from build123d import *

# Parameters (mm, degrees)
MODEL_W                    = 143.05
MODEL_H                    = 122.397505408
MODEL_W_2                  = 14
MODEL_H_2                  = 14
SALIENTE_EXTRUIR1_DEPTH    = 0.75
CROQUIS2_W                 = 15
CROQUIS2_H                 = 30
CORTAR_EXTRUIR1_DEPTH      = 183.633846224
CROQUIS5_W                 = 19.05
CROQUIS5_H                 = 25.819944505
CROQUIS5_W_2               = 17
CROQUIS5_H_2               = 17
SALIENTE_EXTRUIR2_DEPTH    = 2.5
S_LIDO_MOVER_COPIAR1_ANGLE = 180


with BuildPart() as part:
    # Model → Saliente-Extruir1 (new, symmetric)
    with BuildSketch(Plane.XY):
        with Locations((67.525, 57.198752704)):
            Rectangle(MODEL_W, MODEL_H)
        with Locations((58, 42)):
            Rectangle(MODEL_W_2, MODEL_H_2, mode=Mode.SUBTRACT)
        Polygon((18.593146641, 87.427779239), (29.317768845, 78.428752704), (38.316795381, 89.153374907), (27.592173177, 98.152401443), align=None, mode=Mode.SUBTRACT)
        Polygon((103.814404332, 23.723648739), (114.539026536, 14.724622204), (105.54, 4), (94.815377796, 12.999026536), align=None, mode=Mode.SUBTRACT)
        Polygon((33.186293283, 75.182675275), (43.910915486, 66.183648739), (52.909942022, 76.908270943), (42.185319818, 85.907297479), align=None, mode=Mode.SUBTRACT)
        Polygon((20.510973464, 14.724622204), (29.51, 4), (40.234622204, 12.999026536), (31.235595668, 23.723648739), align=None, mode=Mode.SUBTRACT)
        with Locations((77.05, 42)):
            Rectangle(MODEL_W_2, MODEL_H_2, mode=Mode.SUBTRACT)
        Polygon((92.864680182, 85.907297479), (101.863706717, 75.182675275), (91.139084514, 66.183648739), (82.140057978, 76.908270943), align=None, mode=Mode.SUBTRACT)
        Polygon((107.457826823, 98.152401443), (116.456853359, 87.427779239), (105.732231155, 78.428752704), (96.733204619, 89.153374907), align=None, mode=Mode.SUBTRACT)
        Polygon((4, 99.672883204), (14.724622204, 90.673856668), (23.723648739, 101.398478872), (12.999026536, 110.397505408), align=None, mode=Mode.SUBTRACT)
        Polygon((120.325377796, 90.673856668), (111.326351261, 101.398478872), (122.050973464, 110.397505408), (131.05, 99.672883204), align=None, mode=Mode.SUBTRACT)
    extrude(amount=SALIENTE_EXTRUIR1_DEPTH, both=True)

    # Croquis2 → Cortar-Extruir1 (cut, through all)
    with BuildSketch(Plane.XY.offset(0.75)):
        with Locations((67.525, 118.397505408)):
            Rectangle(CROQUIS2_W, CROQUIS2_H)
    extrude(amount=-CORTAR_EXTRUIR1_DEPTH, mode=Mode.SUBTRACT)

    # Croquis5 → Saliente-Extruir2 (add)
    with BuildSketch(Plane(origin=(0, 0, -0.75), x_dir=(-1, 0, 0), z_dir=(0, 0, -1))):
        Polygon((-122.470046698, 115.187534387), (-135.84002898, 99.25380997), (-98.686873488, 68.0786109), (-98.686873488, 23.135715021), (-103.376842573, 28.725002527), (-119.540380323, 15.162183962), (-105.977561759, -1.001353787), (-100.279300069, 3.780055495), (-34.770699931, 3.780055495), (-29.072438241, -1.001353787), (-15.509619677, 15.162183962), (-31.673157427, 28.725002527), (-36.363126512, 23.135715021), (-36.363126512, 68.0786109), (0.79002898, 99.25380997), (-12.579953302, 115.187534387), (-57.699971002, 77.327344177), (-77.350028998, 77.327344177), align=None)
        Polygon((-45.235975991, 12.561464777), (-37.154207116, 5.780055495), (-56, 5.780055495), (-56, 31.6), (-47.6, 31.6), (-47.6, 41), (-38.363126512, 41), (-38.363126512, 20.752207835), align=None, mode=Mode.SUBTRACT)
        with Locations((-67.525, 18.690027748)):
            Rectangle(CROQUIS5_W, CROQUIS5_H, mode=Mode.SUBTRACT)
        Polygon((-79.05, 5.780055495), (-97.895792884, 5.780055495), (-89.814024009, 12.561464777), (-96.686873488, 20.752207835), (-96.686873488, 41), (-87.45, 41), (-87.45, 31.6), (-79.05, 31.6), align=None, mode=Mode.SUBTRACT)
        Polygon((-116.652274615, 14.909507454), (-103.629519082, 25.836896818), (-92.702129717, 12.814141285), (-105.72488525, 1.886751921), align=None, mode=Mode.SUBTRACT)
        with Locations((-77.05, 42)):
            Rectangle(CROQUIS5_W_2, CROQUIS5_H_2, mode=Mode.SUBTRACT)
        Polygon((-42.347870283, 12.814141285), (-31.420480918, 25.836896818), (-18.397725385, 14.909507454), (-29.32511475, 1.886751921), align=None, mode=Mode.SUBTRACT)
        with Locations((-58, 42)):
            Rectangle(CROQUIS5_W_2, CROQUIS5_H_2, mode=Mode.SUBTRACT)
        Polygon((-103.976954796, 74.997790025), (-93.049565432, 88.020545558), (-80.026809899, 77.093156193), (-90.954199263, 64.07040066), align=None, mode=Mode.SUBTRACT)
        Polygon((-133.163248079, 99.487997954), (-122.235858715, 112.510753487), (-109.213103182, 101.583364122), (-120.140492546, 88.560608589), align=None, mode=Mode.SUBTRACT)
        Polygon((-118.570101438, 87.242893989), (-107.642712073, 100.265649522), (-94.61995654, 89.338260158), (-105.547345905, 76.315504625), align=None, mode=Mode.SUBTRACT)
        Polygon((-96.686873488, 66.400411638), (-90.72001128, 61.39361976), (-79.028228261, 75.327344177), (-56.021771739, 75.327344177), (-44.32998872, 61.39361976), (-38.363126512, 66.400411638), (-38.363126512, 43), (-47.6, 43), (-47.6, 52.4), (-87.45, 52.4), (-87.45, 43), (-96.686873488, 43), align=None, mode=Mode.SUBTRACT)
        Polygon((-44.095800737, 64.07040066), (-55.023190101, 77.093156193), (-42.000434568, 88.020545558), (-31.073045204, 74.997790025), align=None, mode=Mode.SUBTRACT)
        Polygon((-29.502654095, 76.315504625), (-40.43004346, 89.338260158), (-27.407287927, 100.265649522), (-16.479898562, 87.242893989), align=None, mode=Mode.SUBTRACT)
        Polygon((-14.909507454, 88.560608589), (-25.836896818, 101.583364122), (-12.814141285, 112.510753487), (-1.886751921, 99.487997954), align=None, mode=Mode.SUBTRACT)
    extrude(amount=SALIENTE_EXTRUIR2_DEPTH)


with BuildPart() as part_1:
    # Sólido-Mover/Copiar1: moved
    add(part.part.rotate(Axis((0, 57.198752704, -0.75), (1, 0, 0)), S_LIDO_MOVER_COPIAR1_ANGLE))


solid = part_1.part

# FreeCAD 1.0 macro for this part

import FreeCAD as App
import Part
import Sketcher

V = App.Vector
Q = App.Units.Quantity

doc = App.newDocument("Part")
params = doc.addObject("Spreadsheet::Sheet", "Params")
for row, (alias, value) in enumerate([
    ("sketch1_width", "14 mm"),
    ("sketch1_length", "14 mm"),
    ("sketch1_width2", "143.05 mm"),
    ("pad1_length", "1.5 mm"),
    ("sketch2_width", "15 mm"),
    ("sketch2_height", "30 mm"),
    ("sketch3_width", "17 mm"),
    ("sketch3_length", "17 mm"),
    ("sketch3_width2", "8.4 mm"),
    ("sketch3_height", "9.4 mm"),
    ("sketch3_length2", "20.8 mm"),
    ("pad2_length", "2.5 mm"),
], start=1):
    params.set(f"A{row}", alias)
    params.set(f"B{row}", "=" + value)
    params.setAlias(f"B{row}", alias)

body = doc.addObject("PartDesign::Body", "Body")

# Sketch on XY plane
sketch1 = body.newObject("Sketcher::SketchObject", "Sketch")
sketch1.AttachmentSupport = (doc.getObject("XY_Plane"), [""])
sketch1.MapMode = "FlatFace"
sketch1.addGeometry([
    Part.LineSegment(V(-4, 118, 0), V(-4, -4, 0)),  # 0
    Part.LineSegment(V(-4, -4, 0), V(139, -4, 0)),  # 1
    Part.LineSegment(V(139, -4, 0), V(139, 118, 0)),  # 2
    Part.LineSegment(V(139, 118, 0), V(-4, 118, 0)),  # 3
    Part.LineSegment(V(30, 4, 0), V(21, 15, 0)),  # 4
    Part.LineSegment(V(21, 15, 0), V(31, 24, 0)),  # 5
    Part.LineSegment(V(31, 24, 0), V(40, 13, 0)),  # 6
    Part.LineSegment(V(40, 13, 0), V(30, 4, 0)),  # 7
    Part.LineSegment(V(65, 35, 0), V(51, 35, 0)),  # 8
    Part.LineSegment(V(51, 35, 0), V(51, 49, 0)),  # 9
    Part.LineSegment(V(51, 49, 0), V(65, 49, 0)),  # 10
    Part.LineSegment(V(65, 49, 0), V(65, 35, 0)),  # 11
    Part.LineSegment(V(95, 13, 0), V(104, 24, 0)),  # 12
    Part.LineSegment(V(104, 24, 0), V(115, 15, 0)),  # 13
    Part.LineSegment(V(115, 15, 0), V(106, 4, 0)),  # 14
    Part.LineSegment(V(106, 4, 0), V(95, 13, 0)),  # 15
    Part.LineSegment(V(84, 35, 0), V(70, 35, 0)),  # 16
    Part.LineSegment(V(70, 35, 0), V(70, 49, 0)),  # 17
    Part.LineSegment(V(70, 49, 0), V(84, 49, 0)),  # 18
    Part.LineSegment(V(84, 49, 0), V(84, 35, 0)),  # 19
    Part.LineSegment(V(44, 66, 0), V(33, 75, 0)),  # 20
    Part.LineSegment(V(33, 75, 0), V(42, 86, 0)),  # 21
    Part.LineSegment(V(42, 86, 0), V(53, 77, 0)),  # 22
    Part.LineSegment(V(53, 77, 0), V(44, 66, 0)),  # 23
    Part.LineSegment(V(29, 78, 0), V(19, 87, 0)),  # 24
    Part.LineSegment(V(19, 87, 0), V(28, 98, 0)),  # 25
    Part.LineSegment(V(28, 98, 0), V(38, 89, 0)),  # 26
    Part.LineSegment(V(38, 89, 0), V(29, 78, 0)),  # 27
    Part.LineSegment(V(15, 91, 0), V(4, 100, 0)),  # 28
    Part.LineSegment(V(4, 100, 0), V(13, 110, 0)),  # 29
    Part.LineSegment(V(13, 110, 0), V(24, 101, 0)),  # 30
    Part.LineSegment(V(24, 101, 0), V(15, 91, 0)),  # 31
    Part.LineSegment(V(82, 77, 0), V(93, 86, 0)),  # 32
    Part.LineSegment(V(93, 86, 0), V(102, 75, 0)),  # 33
    Part.LineSegment(V(102, 75, 0), V(91, 66, 0)),  # 34
    Part.LineSegment(V(91, 66, 0), V(82, 77, 0)),  # 35
    Part.LineSegment(V(97, 89, 0), V(107, 98, 0)),  # 36
    Part.LineSegment(V(107, 98, 0), V(116, 87, 0)),  # 37
    Part.LineSegment(V(116, 87, 0), V(106, 78, 0)),  # 38
    Part.LineSegment(V(106, 78, 0), V(97, 89, 0)),  # 39
    Part.LineSegment(V(131, 100, 0), V(120, 91, 0)),  # 40
    Part.LineSegment(V(120, 91, 0), V(111, 101, 0)),  # 41
    Part.LineSegment(V(111, 101, 0), V(122, 110, 0)),  # 42
    Part.LineSegment(V(122, 110, 0), V(131, 100, 0)),  # 43
], False)
sketch1.addConstraint([
    Sketcher.Constraint("Coincident", 0, 2, 1, 1),
    Sketcher.Constraint("Coincident", 1, 2, 2, 1),
    Sketcher.Constraint("Coincident", 2, 2, 3, 1),
    Sketcher.Constraint("Coincident", 3, 2, 0, 1),
    Sketcher.Constraint("Coincident", 4, 2, 5, 1),
    Sketcher.Constraint("Coincident", 5, 2, 6, 1),
    Sketcher.Constraint("Coincident", 6, 2, 7, 1),
    Sketcher.Constraint("Coincident", 7, 2, 4, 1),
    Sketcher.Constraint("Coincident", 8, 2, 9, 1),
    Sketcher.Constraint("Coincident", 9, 2, 10, 1),
    Sketcher.Constraint("Coincident", 10, 2, 11, 1),
    Sketcher.Constraint("Coincident", 11, 2, 8, 1),
    Sketcher.Constraint("Coincident", 12, 2, 13, 1),
    Sketcher.Constraint("Coincident", 13, 2, 14, 1),
    Sketcher.Constraint("Coincident", 14, 2, 15, 1),
    Sketcher.Constraint("Coincident", 15, 2, 12, 1),
    Sketcher.Constraint("Coincident", 16, 2, 17, 1),
    Sketcher.Constraint("Coincident", 17, 2, 18, 1),
    Sketcher.Constraint("Coincident", 18, 2, 19, 1),
    Sketcher.Constraint("Coincident", 19, 2, 16, 1),
    Sketcher.Constraint("Coincident", 20, 2, 21, 1),
    Sketcher.Constraint("Coincident", 21, 2, 22, 1),
    Sketcher.Constraint("Coincident", 22, 2, 23, 1),
    Sketcher.Constraint("Coincident", 23, 2, 20, 1),
    Sketcher.Constraint("Coincident", 24, 2, 25, 1),
    Sketcher.Constraint("Coincident", 25, 2, 26, 1),
    Sketcher.Constraint("Coincident", 26, 2, 27, 1),
    Sketcher.Constraint("Coincident", 27, 2, 24, 1),
    Sketcher.Constraint("Coincident", 28, 2, 29, 1),
    Sketcher.Constraint("Coincident", 29, 2, 30, 1),
    Sketcher.Constraint("Coincident", 30, 2, 31, 1),
    Sketcher.Constraint("Coincident", 31, 2, 28, 1),
    Sketcher.Constraint("Coincident", 32, 2, 33, 1),
    Sketcher.Constraint("Coincident", 33, 2, 34, 1),
    Sketcher.Constraint("Coincident", 34, 2, 35, 1),
    Sketcher.Constraint("Coincident", 35, 2, 32, 1),
    Sketcher.Constraint("Coincident", 36, 2, 37, 1),
    Sketcher.Constraint("Coincident", 37, 2, 38, 1),
    Sketcher.Constraint("Coincident", 38, 2, 39, 1),
    Sketcher.Constraint("Coincident", 39, 2, 36, 1),
    Sketcher.Constraint("Coincident", 40, 2, 41, 1),
    Sketcher.Constraint("Coincident", 41, 2, 42, 1),
    Sketcher.Constraint("Coincident", 42, 2, 43, 1),
    Sketcher.Constraint("Coincident", 43, 2, 40, 1),
    Sketcher.Constraint("Vertical", 0),
    Sketcher.Constraint("Horizontal", 1),
    Sketcher.Constraint("Vertical", 2),
    Sketcher.Constraint("Horizontal", 3),
    Sketcher.Constraint("Horizontal", 8),
    Sketcher.Constraint("Vertical", 9),
    Sketcher.Constraint("Horizontal", 10),
    Sketcher.Constraint("Vertical", 11),
    Sketcher.Constraint("Horizontal", 16),
    Sketcher.Constraint("Vertical", 17),
    Sketcher.Constraint("Horizontal", 18),
    Sketcher.Constraint("Vertical", 19),
    Sketcher.Constraint("Perpendicular", 4, 5),
    Sketcher.Constraint("Perpendicular", 5, 6),
    Sketcher.Constraint("Perpendicular", 6, 7),
    Sketcher.Constraint("Perpendicular", 12, 13),
    Sketcher.Constraint("Perpendicular", 13, 14),
    Sketcher.Constraint("Perpendicular", 14, 15),
    Sketcher.Constraint("Parallel", 15, 20),
    Sketcher.Constraint("Perpendicular", 20, 21),
    Sketcher.Constraint("Perpendicular", 21, 22),
    Sketcher.Constraint("Perpendicular", 22, 23),
    Sketcher.Constraint("Perpendicular", 23, 24),
    Sketcher.Constraint("Perpendicular", 24, 25),
    Sketcher.Constraint("Perpendicular", 25, 26),
    Sketcher.Constraint("Perpendicular", 26, 27),
    Sketcher.Constraint("Perpendicular", 27, 28),
    Sketcher.Constraint("Perpendicular", 28, 29),
    Sketcher.Constraint("Perpendicular", 29, 30),
    Sketcher.Constraint("Perpendicular", 30, 31),
    Sketcher.Constraint("Parallel", 7, 32),
    Sketcher.Constraint("Perpendicular", 32, 33),
    Sketcher.Constraint("Perpendicular", 33, 34),
    Sketcher.Constraint("Perpendicular", 34, 35),
    Sketcher.Constraint("Perpendicular", 35, 36),
    Sketcher.Constraint("Perpendicular", 36, 37),
    Sketcher.Constraint("Perpendicular", 37, 38),
    Sketcher.Constraint("Perpendicular", 38, 39),
    Sketcher.Constraint("Perpendicular", 39, 40),
    Sketcher.Constraint("Perpendicular", 40, 41),
    Sketcher.Constraint("Perpendicular", 41, 42),
    Sketcher.Constraint("Perpendicular", 42, 43),
    Sketcher.Constraint("Horizontal", 5, 2, 12, 2),
    Sketcher.Constraint("Horizontal", 4, 2, 13, 2),
    Sketcher.Constraint("Horizontal", 7, 2, 14, 2),
    Sketcher.Constraint("Horizontal", 11, 2, 16, 2),
    Sketcher.Constraint("Horizontal", 10, 2, 17, 2),
    Sketcher.Constraint("Horizontal", 21, 2, 32, 2),
    Sketcher.Constraint("Horizontal", 20, 2, 33, 2),
    Sketcher.Constraint("Horizontal", 23, 2, 34, 2),
    Sketcher.Constraint("Horizontal", 25, 2, 36, 2),
    Sketcher.Constraint("Horizontal", 24, 2, 37, 2),
    Sketcher.Constraint("Horizontal", 27, 2, 38, 2),
    Sketcher.Constraint("Horizontal", 31, 2, 40, 2),
    Sketcher.Constraint("Horizontal", 30, 2, 41, 2),
    Sketcher.Constraint("Horizontal", 29, 2, 42, 2),
    Sketcher.Constraint("Equal", 10, 16),
    Sketcher.Constraint("Equal", 18, 9),
    Sketcher.Constraint("Equal", 4, 5),
    Sketcher.Constraint("Equal", 7, 12),
    Sketcher.Constraint("Equal", 15, 20),
    Sketcher.Constraint("Equal", 20, 21),
    Sketcher.Constraint("Equal", 23, 24),
    Sketcher.Constraint("Equal", 24, 25),
    Sketcher.Constraint("Equal", 27, 28),
    Sketcher.Constraint("Equal", 28, 29),
    Sketcher.Constraint("DistanceX", 8, 2, 8, 1, 14.0),
    Sketcher.Constraint("Angle", 4, Q("130 deg")),
    Sketcher.Constraint("Distance", 4, 14.0),
    Sketcher.Constraint("DistanceX", 0, 2, -1, 1, 4.0),
    Sketcher.Constraint("DistanceY", 0, 2, -1, 1, 4.0),
    Sketcher.Constraint("DistanceY", -1, 1, 7, 2, 4.0),
    Sketcher.Constraint("DistanceX", -1, 1, 8, 2, 51.0),
    Sketcher.Constraint("DistanceY", -1, 1, 8, 2, 35.0),
    Sketcher.Constraint("DistanceX", -1, 1, 28, 2, 4.0),
    Sketcher.Constraint("DistanceY", 29, 2, 3, 2, 8.0),
    Sketcher.Constraint("DistanceX", 43, 2, 2, 2, 8.0),
    Sketcher.Constraint("DistanceX", 1, 1, 1, 2, 143.05),
    Sketcher.Constraint("DistanceX", -1, 1, 7, 2, 29.51),
    Sketcher.Constraint("DistanceX", -1, 1, 14, 2, 105.54),
    Sketcher.Constraint("DistanceX", -1, 1, 16, 2, 70.05),
    Sketcher.Constraint("DistanceY", -1, 1, 25, 2, 98.152401),
    Sketcher.Constraint("DistanceY", 20, 2, 26, 2, 13.9707),
    Sketcher.Constraint("DistanceY", 24, 2, 30, 2, 13.9707),
    Sketcher.Constraint("DistanceX", -1, 1, 21, 2, 42.18532),
    Sketcher.Constraint("DistanceX", -1, 1, 27, 2, 29.317769),
    Sketcher.Constraint("DistanceX", -1, 1, 32, 2, 92.86468),
    Sketcher.Constraint("DistanceX", -1, 1, 38, 2, 105.732231),
])
sketch1.setExpression("Constraints[110]", "Params.sketch1_width")
sketch1.setExpression("Constraints[112]", "Params.sketch1_length")
sketch1.setExpression("Constraints[121]", "Params.sketch1_width2")
pad1 = body.newObject("PartDesign::Pad", "Pad")
pad1.Profile = sketch1
pad1.setExpression("Length", "Params.pad1_length")
pad1.Midplane = True

# Sketch on XY plane
sketch2 = body.newObject("Sketcher::SketchObject", "Sketch001")
sketch2.AttachmentSupport = (doc.getObject("XY_Plane"), [""])
sketch2.MapMode = "FlatFace"
sketch2.AttachmentOffset = App.Placement(V(0, 0, 0.75), App.Rotation())
sketch2.addGeometry([
    Part.LineSegment(V(60, 133, 0), V(60, 103, 0)),
    Part.LineSegment(V(60, 103, 0), V(75, 103, 0)),
    Part.LineSegment(V(75, 103, 0), V(75, 133, 0)),
    Part.LineSegment(V(75, 133, 0), V(60, 133, 0)),
], False)
sketch2.addConstraint([
    Sketcher.Constraint("Coincident", 0, 2, 1, 1),
    Sketcher.Constraint("Coincident", 1, 2, 2, 1),
    Sketcher.Constraint("Coincident", 2, 2, 3, 1),
    Sketcher.Constraint("Coincident", 3, 2, 0, 1),
    Sketcher.Constraint("Vertical", 0),
    Sketcher.Constraint("Horizontal", 1),
    Sketcher.Constraint("Vertical", 2),
    Sketcher.Constraint("Horizontal", 3),
    Sketcher.Constraint("DistanceX", 1, 1, 1, 2, 15.0),
    Sketcher.Constraint("DistanceY", 0, 2, 0, 1, 30.0),
    Sketcher.Constraint("DistanceX", -1, 1, 0, 2, 60.025),
    Sketcher.Constraint("DistanceY", -1, 1, 0, 2, 103.397505),
])
sketch2.setExpression("Constraints[8]", "Params.sketch2_width")
sketch2.setExpression("Constraints[9]", "Params.sketch2_height")
pocket1 = body.newObject("PartDesign::Pocket", "Pocket")
pocket1.Profile = sketch2
pocket1.Type = "ThroughAll"

# Sketch on XY plane
sketch3 = body.newObject("Sketcher::SketchObject", "Sketch002")
sketch3.AttachmentSupport = (doc.getObject("XY_Plane"), [""])
sketch3.MapMode = "FlatFace"
sketch3.AttachmentOffset = App.Placement(V(0, 0, -0.75), App.Rotation())
sketch3.addGeometry([
    Part.LineSegment(V(122, 115, 0), V(136, 99, 0)),  # 0
    Part.LineSegment(V(136, 99, 0), V(99, 68, 0)),  # 1
    Part.LineSegment(V(99, 68, 0), V(99, 23, 0)),  # 2
    Part.LineSegment(V(99, 23, 0), V(103, 29, 0)),  # 3
    Part.LineSegment(V(103, 29, 0), V(120, 15, 0)),  # 4
    Part.LineSegment(V(120, 15, 0), V(106, -1, 0)),  # 5
    Part.LineSegment(V(106, -1, 0), V(100, 4, 0)),  # 6
    Part.LineSegment(V(100, 4, 0), V(35, 4, 0)),  # 7
    Part.LineSegment(V(35, 4, 0), V(29, -1, 0)),  # 8
    Part.LineSegment(V(29, -1, 0), V(16, 15, 0)),  # 9
    Part.LineSegment(V(16, 15, 0), V(32, 29, 0)),  # 10
    Part.LineSegment(V(32, 29, 0), V(36, 23, 0)),  # 11
    Part.LineSegment(V(36, 23, 0), V(36, 68, 0)),  # 12
    Part.LineSegment(V(36, 68, 0), V(-1, 99, 0)),  # 13
    Part.LineSegment(V(-1, 99, 0), V(13, 115, 0)),  # 14
    Part.LineSegment(V(13, 115, 0), V(58, 77, 0)),  # 15
    Part.LineSegment(V(58, 77, 0), V(77, 77, 0)),  # 16
    Part.LineSegment(V(77, 77, 0), V(122, 115, 0)),  # 17
    Part.LineSegment(V(106, 2, 0), V(117, 15, 0)),  # 18
    Part.LineSegment(V(117, 15, 0), V(104, 26, 0)),  # 19
    Part.LineSegment(V(104, 26, 0), V(93, 13, 0)),  # 20
    Part.LineSegment(V(93, 13, 0), V(106, 2, 0)),  # 21
    Part.LineSegment(V(79, 32, 0), V(79, 6, 0)),  # 22
    Part.LineSegment(V(79, 6, 0), V(98, 6, 0)),  # 23
    Part.LineSegment(V(98, 6, 0), V(90, 13, 0)),  # 24
    Part.LineSegment(V(90, 13, 0), V(97, 21, 0)),  # 25
    Part.LineSegment(V(97, 21, 0), V(97, 41, 0)),  # 26
    Part.LineSegment(V(97, 41, 0), V(87, 41, 0)),  # 27
    Part.LineSegment(V(87, 41, 0), V(87, 32, 0)),  # 28
    Part.LineSegment(V(87, 32, 0), V(79, 32, 0)),  # 29
    Part.LineSegment(V(69, 34, 0), V(86, 34, 0)),  # 30
    Part.LineSegment(V(86, 34, 0), V(86, 50, 0)),  # 31
    Part.LineSegment(V(86, 50, 0), V(69, 50, 0)),  # 32
    Part.LineSegment(V(69, 50, 0), V(69, 34, 0)),  # 33
    Part.LineSegment(V(58, 6, 0), V(77, 6, 0)),  # 34
    Part.LineSegment(V(77, 6, 0), V(77, 32, 0)),  # 35
    Part.LineSegment(V(77, 32, 0), V(58, 32, 0)),  # 36
    Part.LineSegment(V(58, 32, 0), V(58, 6, 0)),  # 37
    Part.LineSegment(V(38, 21, 0), V(45, 13, 0)),  # 38
    Part.LineSegment(V(45, 13, 0), V(37, 6, 0)),  # 39
    Part.LineSegment(V(37, 6, 0), V(56, 6, 0)),  # 40
    Part.LineSegment(V(56, 6, 0), V(56, 32, 0)),  # 41
    Part.LineSegment(V(56, 32, 0), V(48, 32, 0)),  # 42
    Part.LineSegment(V(48, 32, 0), V(48, 41, 0)),  # 43
    Part.LineSegment(V(48, 41, 0), V(38, 41, 0)),  # 44
    Part.LineSegment(V(38, 41, 0), V(38, 21, 0)),  # 45
    Part.LineSegment(V(29, 2, 0), V(42, 13, 0)),  # 46
    Part.LineSegment(V(42, 13, 0), V(31, 26, 0)),  # 47
    Part.LineSegment(V(31, 26, 0), V(18, 15, 0)),  # 48
    Part.LineSegment(V(18, 15, 0), V(29, 2, 0)),  # 49
    Part.LineSegment(V(50, 34, 0), V(66, 34, 0)),  # 50
    Part.LineSegment(V(66, 34, 0), V(66, 50, 0)),  # 51
    Part.LineSegment(V(66, 50, 0), V(50, 50, 0)),  # 52
    Part.LineSegment(V(50, 50, 0), V(50, 34, 0)),  # 53
    Part.LineSegment(V(91, 64, 0), V(104, 75, 0)),  # 54
    Part.LineSegment(V(104, 75, 0), V(93, 88, 0)),  # 55
    Part.LineSegment(V(93, 88, 0), V(80, 77, 0)),  # 56
    Part.LineSegment(V(80, 77, 0), V(91, 64, 0)),  # 57
    Part.LineSegment(V(106, 76, 0), V(119, 87, 0)),  # 58
    Part.LineSegment(V(119, 87, 0), V(108, 100, 0)),  # 59
    Part.LineSegment(V(108, 100, 0), V(95, 89, 0)),  # 60
    Part.LineSegment(V(95, 89, 0), V(106, 76, 0)),  # 61
    Part.LineSegment(V(120, 89, 0), V(133, 99, 0)),  # 62
    Part.LineSegment(V(133, 99, 0), V(122, 113, 0)),  # 63
    Part.LineSegment(V(122, 113, 0), V(109, 102, 0)),  # 64
    Part.LineSegment(V(109, 102, 0), V(120, 89, 0)),  # 65
    Part.LineSegment(V(97, 43, 0), V(97, 66, 0)),  # 66
    Part.LineSegment(V(97, 66, 0), V(91, 61, 0)),  # 67
    Part.LineSegment(V(91, 61, 0), V(79, 75, 0)),  # 68
    Part.LineSegment(V(79, 75, 0), V(56, 75, 0)),  # 69
    Part.LineSegment(V(56, 75, 0), V(44, 61, 0)),  # 70
    Part.LineSegment(V(44, 61, 0), V(38, 66, 0)),  # 71
    Part.LineSegment(V(38, 66, 0), V(38, 43, 0)),  # 72
    Part.LineSegment(V(38, 43, 0), V(48, 43, 0)),  # 73
    Part.LineSegment(V(48, 43, 0), V(48, 52, 0)),  # 74
    Part.LineSegment(V(48, 52, 0), V(87, 52, 0)),  # 75
    Part.LineSegment(V(87, 52, 0), V(87, 43, 0)),  # 76
    Part.LineSegment(V(87, 43, 0), V(97, 43, 0)),  # 77
    Part.LineSegment(V(31, 75, 0), V(44, 64, 0)),  # 78
    Part.LineSegment(V(44, 64, 0), V(55, 77, 0)),  # 79
    Part.LineSegment(V(55, 77, 0), V(42, 88, 0)),  # 80
    Part.LineSegment(V(42, 88, 0), V(31, 75, 0)),  # 81
    Part.LineSegment(V(16, 87, 0), V(30, 76, 0)),  # 82
    Part.LineSegment(V(30, 76, 0), V(40, 89, 0)),  # 83
    Part.LineSegment(V(40, 89, 0), V(27, 100, 0)),  # 84
    Part.LineSegment(V(27, 100, 0), V(16, 87, 0)),  # 85
    Part.LineSegment(V(2, 99, 0), V(15, 89, 0)),  # 86
    Part.LineSegment(V(15, 89, 0), V(26, 102, 0)),  # 87
    Part.LineSegment(V(26, 102, 0), V(13, 113, 0)),  # 88
    Part.LineSegment(V(13, 113, 0), V(2, 99, 0)),  # 89
], False)
sketch3.addConstraint([
    Sketcher.Constraint("Coincident", 0, 2, 1, 1),
    Sketcher.Constraint("Coincident", 1, 2, 2, 1),
    Sketcher.Constraint("Coincident", 2, 2, 3, 1),
    Sketcher.Constraint("Coincident", 3, 2, 4, 1),
    Sketcher.Constraint("Coincident", 4, 2, 5, 1),
    Sketcher.Constraint("Coincident", 5, 2, 6, 1),
    Sketcher.Constraint("Coincident", 6, 2, 7, 1),
    Sketcher.Constraint("Coincident", 7, 2, 8, 1),
    Sketcher.Constraint("Coincident", 8, 2, 9, 1),
    Sketcher.Constraint("Coincident", 9, 2, 10, 1),
    Sketcher.Constraint("Coincident", 10, 2, 11, 1),
    Sketcher.Constraint("Coincident", 11, 2, 12, 1),
    Sketcher.Constraint("Coincident", 12, 2, 13, 1),
    Sketcher.Constraint("Coincident", 13, 2, 14, 1),
    Sketcher.Constraint("Coincident", 14, 2, 15, 1),
    Sketcher.Constraint("Coincident", 15, 2, 16, 1),
    Sketcher.Constraint("Coincident", 16, 2, 17, 1),
    Sketcher.Constraint("Coincident", 17, 2, 0, 1),
    Sketcher.Constraint("Coincident", 18, 2, 19, 1),
    Sketcher.Constraint("Coincident", 19, 2, 20, 1),
    Sketcher.Constraint("Coincident", 20, 2, 21, 1),
    Sketcher.Constraint("Coincident", 21, 2, 18, 1),
    Sketcher.Constraint("Coincident", 22, 2, 23, 1),
    Sketcher.Constraint("Coincident", 23, 2, 24, 1),
    Sketcher.Constraint("Coincident", 24, 2, 25, 1),
    Sketcher.Constraint("Coincident", 25, 2, 26, 1),
    Sketcher.Constraint("Coincident", 26, 2, 27, 1),
    Sketcher.Constraint("Coincident", 27, 2, 28, 1),
    Sketcher.Constraint("Coincident", 28, 2, 29, 1),
    Sketcher.Constraint("Coincident", 29, 2, 22, 1),
    Sketcher.Constraint("Coincident", 30, 2, 31, 1),
    Sketcher.Constraint("Coincident", 31, 2, 32, 1),
    Sketcher.Constraint("Coincident", 32, 2, 33, 1),
    Sketcher.Constraint("Coincident", 33, 2, 30, 1),
    Sketcher.Constraint("Coincident", 34, 2, 35, 1),
    Sketcher.Constraint("Coincident", 35, 2, 36, 1),
    Sketcher.Constraint("Coincident", 36, 2, 37, 1),
    Sketcher.Constraint("Coincident", 37, 2, 34, 1),
    Sketcher.Constraint("Coincident", 38, 2, 39, 1),
    Sketcher.Constraint("Coincident", 39, 2, 40, 1),
    Sketcher.Constraint("Coincident", 40, 2, 41, 1),
    Sketcher.Constraint("Coincident", 41, 2, 42, 1),
    Sketcher.Constraint("Coincident", 42, 2, 43, 1),
    Sketcher.Constraint("Coincident", 43, 2, 44, 1),
    Sketcher.Constraint("Coincident", 44, 2, 45, 1),
    Sketcher.Constraint("Coincident", 45, 2, 38, 1),
    Sketcher.Constraint("Coincident", 46, 2, 47, 1),
    Sketcher.Constraint("Coincident", 47, 2, 48, 1),
    Sketcher.Constraint("Coincident", 48, 2, 49, 1),
    Sketcher.Constraint("Coincident", 49, 2, 46, 1),
    Sketcher.Constraint("Coincident", 50, 2, 51, 1),
    Sketcher.Constraint("Coincident", 51, 2, 52, 1),
    Sketcher.Constraint("Coincident", 52, 2, 53, 1),
    Sketcher.Constraint("Coincident", 53, 2, 50, 1),
    Sketcher.Constraint("Coincident", 54, 2, 55, 1),
    Sketcher.Constraint("Coincident", 55, 2, 56, 1),
    Sketcher.Constraint("Coincident", 56, 2, 57, 1),
    Sketcher.Constraint("Coincident", 57, 2, 54, 1),
    Sketcher.Constraint("Coincident", 58, 2, 59, 1),
    Sketcher.Constraint("Coincident", 59, 2, 60, 1),
    Sketcher.Constraint("Coincident", 60, 2, 61, 1),
    Sketcher.Constraint("Coincident", 61, 2, 58, 1),
    Sketcher.Constraint("Coincident", 62, 2, 63, 1),
    Sketcher.Constraint("Coincident", 63, 2, 64, 1),
    Sketcher.Constraint("Coincident", 64, 2, 65, 1),
    Sketcher.Constraint("Coincident", 65, 2, 62, 1),
    Sketcher.Constraint("Coincident", 66, 2, 67, 1),
    Sketcher.Constraint("Coincident", 67, 2, 68, 1),
    Sketcher.Constraint("Coincident", 68, 2, 69, 1),
    Sketcher.Constraint("Coincident", 69, 2, 70, 1),
    Sketcher.Constraint("Coincident", 70, 2, 71, 1),
    Sketcher.Constraint("Coincident", 71, 2, 72, 1),
    Sketcher.Constraint("Coincident", 72, 2, 73, 1),
    Sketcher.Constraint("Coincident", 73, 2, 74, 1),
    Sketcher.Constraint("Coincident", 74, 2, 75, 1),
    Sketcher.Constraint("Coincident", 75, 2, 76, 1),
    Sketcher.Constraint("Coincident", 76, 2, 77, 1),
    Sketcher.Constraint("Coincident", 77, 2, 66, 1),
    Sketcher.Constraint("Coincident", 78, 2, 79, 1),
    Sketcher.Constraint("Coincident", 79, 2, 80, 1),
    Sketcher.Constraint("Coincident", 80, 2, 81, 1),
    Sketcher.Constraint("Coincident", 81, 2, 78, 1),
    Sketcher.Constraint("Coincident", 82, 2, 83, 1),
    Sketcher.Constraint("Coincident", 83, 2, 84, 1),
    Sketcher.Constraint("Coincident", 84, 2, 85, 1),
    Sketcher.Constraint("Coincident", 85, 2, 82, 1),
    Sketcher.Constraint("Coincident", 86, 2, 87, 1),
    Sketcher.Constraint("Coincident", 87, 2, 88, 1),
    Sketcher.Constraint("Coincident", 88, 2, 89, 1),
    Sketcher.Constraint("Coincident", 89, 2, 86, 1),
    Sketcher.Constraint("Vertical", 2),
    Sketcher.Constraint("Horizontal", 7),
    Sketcher.Constraint("Vertical", 12),
    Sketcher.Constraint("Horizontal", 16),
    Sketcher.Constraint("Vertical", 22),
    Sketcher.Constraint("Horizontal", 23),
    Sketcher.Constraint("Vertical", 26),
    Sketcher.Constraint("Horizontal", 27),
    Sketcher.Constraint("Vertical", 28),
    Sketcher.Constraint("Horizontal", 29),
    Sketcher.Constraint("Horizontal", 30),
    Sketcher.Constraint("Vertical", 31),
    Sketcher.Constraint("Horizontal", 32),
    Sketcher.Constraint("Vertical", 33),
    Sketcher.Constraint("Horizontal", 34),
    Sketcher.Constraint("Vertical", 35),
    Sketcher.Constraint("Horizontal", 36),
    Sketcher.Constraint("Vertical", 37),
    Sketcher.Constraint("Horizontal", 40),
    Sketcher.Constraint("Vertical", 41),
    Sketcher.Constraint("Horizontal", 42),
    Sketcher.Constraint("Vertical", 43),
    Sketcher.Constraint("Horizontal", 44),
    Sketcher.Constraint("Vertical", 45),
    Sketcher.Constraint("Horizontal", 50),
    Sketcher.Constraint("Vertical", 51),
    Sketcher.Constraint("Horizontal", 52),
    Sketcher.Constraint("Vertical", 53),
    Sketcher.Constraint("Vertical", 66),
    Sketcher.Constraint("Horizontal", 69),
    Sketcher.Constraint("Vertical", 72),
    Sketcher.Constraint("Horizontal", 73),
    Sketcher.Constraint("Vertical", 74),
    Sketcher.Constraint("Horizontal", 75),
    Sketcher.Constraint("Vertical", 76),
    Sketcher.Constraint("Horizontal", 77),
    Sketcher.Constraint("Perpendicular", 0, 1),
    Sketcher.Constraint("Perpendicular", 3, 4),
    Sketcher.Constraint("Perpendicular", 4, 5),
    Sketcher.Constraint("Perpendicular", 5, 6),
    Sketcher.Constraint("Parallel", 1, 8),
    Sketcher.Constraint("Perpendicular", 8, 9),
    Sketcher.Constraint("Perpendicular", 9, 10),
    Sketcher.Constraint("Perpendicular", 10, 11),
    Sketcher.Constraint("Parallel", 6, 13),
    Sketcher.Constraint("Perpendicular", 13, 14),
    Sketcher.Constraint("Perpendicular", 14, 15),
    Sketcher.Constraint("Perpendicular", 11, 17),
    Sketcher.Constraint("Perpendicular", 15, 18),
    Sketcher.Constraint("Perpendicular", 18, 19),
    Sketcher.Constraint("Perpendicular", 19, 20),
    Sketcher.Constraint("Perpendicular", 20, 21),
    Sketcher.Constraint("Parallel", 21, 24),
    Sketcher.Constraint("Perpendicular", 24, 25),
    Sketcher.Constraint("Perpendicular", 17, 38),
    Sketcher.Constraint("Perpendicular", 38, 39),
    Sketcher.Constraint("Parallel", 39, 46),
    Sketcher.Constraint("Perpendicular", 46, 47),
    Sketcher.Constraint("Perpendicular", 47, 48),
    Sketcher.Constraint("Perpendicular", 48, 49),
    Sketcher.Constraint("Perpendicular", 49, 54),
    Sketcher.Constraint("Perpendicular", 54, 55),
    Sketcher.Constraint("Perpendicular", 55, 56),
    Sketcher.Constraint("Perpendicular", 56, 57),
    Sketcher.Constraint("Perpendicular", 57, 58),
    Sketcher.Constraint("Perpendicular", 58, 59),
    Sketcher.Constraint("Perpendicular", 59, 60),
    Sketcher.Constraint("Perpendicular", 60, 61),
    Sketcher.Constraint("Perpendicular", 61, 62),
    Sketcher.Constraint("Perpendicular", 62, 63),
    Sketcher.Constraint("Perpendicular", 63, 64),
    Sketcher.Constraint("Perpendicular", 64, 65),
    Sketcher.Constraint("Perpendicular", 65, 67),
    Sketcher.Constraint("Perpendicular", 67, 68),
    Sketcher.Constraint("Parallel", 25, 70),
    Sketcher.Constraint("Perpendicular", 70, 71),
    Sketcher.Constraint("Parallel", 71, 78),
    Sketcher.Constraint("Perpendicular", 78, 79),
    Sketcher.Constraint("Perpendicular", 79, 80),
    Sketcher.Constraint("Perpendicular", 80, 81),
    Sketcher.Constraint("Perpendicular", 81, 82),
    Sketcher.Constraint("Perpendicular", 82, 83),
    Sketcher.Constraint("Perpendicular", 83, 84),
    Sketcher.Constraint("Perpendicular", 84, 85),
    Sketcher.Constraint("Perpendicular", 85, 86),
    Sketcher.Constraint("Perpendicular", 86, 87),
    Sketcher.Constraint("Perpendicular", 87, 88),
    Sketcher.Constraint("Perpendicular", 88, 89),
    Sketcher.Constraint("Horizontal", 5, 2, 8, 2),
    Sketcher.Constraint("Horizontal", 4, 2, 9, 2),
    Sketcher.Constraint("Horizontal", 3, 2, 10, 2),
    Sketcher.Constraint("Horizontal", 2, 2, 11, 2),
    Sketcher.Constraint("Horizontal", 1, 2, 12, 2),
    Sketcher.Constraint("Horizontal", 0, 2, 13, 2),
    Sketcher.Constraint("Horizontal", 14, 2, 17, 2),
    Sketcher.Constraint("Horizontal", 23, 2, 34, 2),
    Sketcher.Constraint("Horizontal", 29, 2, 35, 2),
    Sketcher.Constraint("Horizontal", 24, 2, 38, 2),
    Sketcher.Constraint("Horizontal", 37, 2, 39, 2),
    Sketcher.Constraint("Horizontal", 36, 2, 41, 2),
    Sketcher.Constraint("Horizontal", 27, 2, 43, 2),
    Sketcher.Constraint("Horizontal", 25, 2, 45, 2),
    Sketcher.Constraint("Horizontal", 20, 2, 46, 2),
    Sketcher.Constraint("Horizontal", 19, 2, 47, 2),
    Sketcher.Constraint("Horizontal", 18, 2, 48, 2),
    Sketcher.Constraint("Horizontal", 33, 2, 50, 2),
    Sketcher.Constraint("Horizontal", 32, 2, 51, 2),
    Sketcher.Constraint("Horizontal", 67, 2, 70, 2),
    Sketcher.Constraint("Horizontal", 66, 2, 71, 2),
    Sketcher.Constraint("Horizontal", 73, 2, 76, 2),
    Sketcher.Constraint("Horizontal", 57, 2, 78, 2),
    Sketcher.Constraint("Horizontal", 56, 2, 79, 2),
    Sketcher.Constraint("Horizontal", 55, 2, 80, 2),
    Sketcher.Constraint("Horizontal", 61, 2, 82, 2),
    Sketcher.Constraint("Horizontal", 60, 2, 83, 2),
    Sketcher.Constraint("Horizontal", 59, 2, 84, 2),
    Sketcher.Constraint("Horizontal", 65, 2, 86, 2),
    Sketcher.Constraint("Horizontal", 64, 2, 87, 2),
    Sketcher.Constraint("Horizontal", 63, 2, 88, 2),
    Sketcher.Constraint("Vertical", 26, 2, 66, 2),
    Sketcher.Constraint("Vertical", 45, 2, 71, 2),
    Sketcher.Constraint("Vertical", 43, 2, 73, 2),
    Sketcher.Constraint("Vertical", 28, 2, 75, 2),
    Sketcher.Constraint("Equal", 23, 40),
    Sketcher.Constraint("Equal", 29, 42),
    Sketcher.Constraint("Equal", 27, 44),
    Sketcher.Constraint("Equal", 32, 50),
    Sketcher.Constraint("Equal", 52, 31),
    Sketcher.Constraint("Equal", 43, 74),
    Sketcher.Constraint("Equal", 4, 5),
    Sketcher.Constraint("Equal", 18, 19),
    Sketcher.Constraint("Equal", 49, 54),
    Sketcher.Constraint("Equal", 54, 55),
    Sketcher.Constraint("Equal", 57, 58),
    Sketcher.Constraint("Equal", 58, 59),
    Sketcher.Constraint("Equal", 61, 62),
    Sketcher.Constraint("Equal", 62, 63),
    Sketcher.Constraint("DistanceX", 30, 1, 30, 2, 17.0),
    Sketcher.Constraint("Angle", 0, Q("-50 deg")),
    Sketcher.Constraint("Distance", 18, 17.0),
    Sketcher.Constraint("DistanceX", 29, 2, 29, 1, 8.4),
    Sketcher.Constraint("DistanceY", 28, 2, 28, 1, 9.4),
    Sketcher.Constraint("DistanceY", -1, 1, 26, 2, 41.0),
    Sketcher.Constraint("DistanceX", -1, 1, 36, 2, 58.0),
    Sketcher.Constraint("DistanceX", -1, 1, 40, 2, 56.0),
    Sketcher.Constraint("DistanceY", -1, 1, 72, 2, 43.0),
    Sketcher.Constraint("Distance", 0, 20.8),
    Sketcher.Constraint("Distance", 1, 48.5),
    Sketcher.Constraint("Distance", 4, 21.1),
    Sketcher.Constraint("Distance", 15, 58.9),
    Sketcher.Constraint("DistanceX", 34, 1, 34, 2, 19.05),
    Sketcher.Constraint("DistanceX", 75, 1, 75, 2, 39.85),
    Sketcher.Constraint("DistanceY", -1, 1, 30, 2, 33.5),
    Sketcher.Constraint("DistanceX", -1, 1, 50, 2, 66.5),
    Sketcher.Constraint("Distance", 24, 10.55),
    Sketcher.Constraint("DistanceX", -1, 1, 30, 2, 85.55),
    Sketcher.Constraint("DistanceX", 7, 2, 7, 1, 65.5086),
    Sketcher.Constraint("DistanceY", 66, 1, 66, 2, 23.400412),
    Sketcher.Constraint("DistanceX", -1, 1, 6, 2, 100.2793),
    Sketcher.Constraint("DistanceX", -1, 1, 57, 2, 90.954199),
    Sketcher.Constraint("DistanceY", -1, 1, 57, 2, 64.070401),
    Sketcher.Constraint("DistanceX", -1, 1, 58, 2, 118.570101),
    Sketcher.Constraint("DistanceX", -1, 1, 78, 2, 44.095801),
    Sketcher.Constraint("DistanceX", -1, 1, 85, 2, 16.479899),
    Sketcher.Constraint("DistanceX", 16, 1, 16, 2, 19.650058),
    Sketcher.Constraint("DistanceX", 23, 1, 23, 2, 18.845793),
    Sketcher.Constraint("DistanceX", 27, 2, 27, 1, 9.236873),
    Sketcher.Constraint("DistanceX", 69, 2, 69, 1, 23.006457),
    Sketcher.Constraint("DistanceY", 2, 2, 2, 1, 44.942896),
    Sketcher.Constraint("DistanceY", 22, 2, 22, 1, 25.819945),
    Sketcher.Constraint("DistanceY", -1, 1, 0, 2, 99.25381),
    Sketcher.Constraint("DistanceX", -1, 1, 4, 2, 119.54038),
    Sketcher.Constraint("DistanceX", -1, 1, 19, 2, 103.629519),
    Sketcher.Constraint("DistanceY", -1, 1, 20, 2, 12.814141),
    Sketcher.Constraint("DistanceX", -1, 1, 46, 2, 42.34787),
    Sketcher.Constraint("DistanceY", -1, 1, 59, 2, 100.26565),
    Sketcher.Constraint("DistanceX", -1, 1, 62, 2, 133.163248),
    Sketcher.Constraint("DistanceY", -1, 1, 65, 2, 88.560609),
    Sketcher.Constraint("DistanceX", -1, 1, 67, 2, 90.720011),
    Sketcher.Constraint("DistanceX", -1, 1, 88, 2, 12.814141),
])
sketch3.setExpression("Constraints[227]", "Params.sketch3_width")
sketch3.setExpression("Constraints[229]", "Params.sketch3_length")
sketch3.setExpression("Constraints[230]", "Params.sketch3_width2")
sketch3.setExpression("Constraints[231]", "Params.sketch3_height")
sketch3.setExpression("Constraints[236]", "Params.sketch3_length2")
pad2 = body.newObject("PartDesign::Pad", "Pad001")
pad2.Profile = sketch3
pad2.setExpression("Length", "Params.pad2_length")
pad2.Reversed = True
body2 = doc.addObject("PartDesign::Body", "Body001")
doc.recompute()

body.Placement = App.Placement(V(0, 114.397505, -1.5), App.Rotation(V(1, 0, 0), 180))
boolean = body2.newObject("PartDesign::Boolean", "Boolean")
boolean.Type = "Fuse"
boolean.addObjects([body])

doc.recompute()
